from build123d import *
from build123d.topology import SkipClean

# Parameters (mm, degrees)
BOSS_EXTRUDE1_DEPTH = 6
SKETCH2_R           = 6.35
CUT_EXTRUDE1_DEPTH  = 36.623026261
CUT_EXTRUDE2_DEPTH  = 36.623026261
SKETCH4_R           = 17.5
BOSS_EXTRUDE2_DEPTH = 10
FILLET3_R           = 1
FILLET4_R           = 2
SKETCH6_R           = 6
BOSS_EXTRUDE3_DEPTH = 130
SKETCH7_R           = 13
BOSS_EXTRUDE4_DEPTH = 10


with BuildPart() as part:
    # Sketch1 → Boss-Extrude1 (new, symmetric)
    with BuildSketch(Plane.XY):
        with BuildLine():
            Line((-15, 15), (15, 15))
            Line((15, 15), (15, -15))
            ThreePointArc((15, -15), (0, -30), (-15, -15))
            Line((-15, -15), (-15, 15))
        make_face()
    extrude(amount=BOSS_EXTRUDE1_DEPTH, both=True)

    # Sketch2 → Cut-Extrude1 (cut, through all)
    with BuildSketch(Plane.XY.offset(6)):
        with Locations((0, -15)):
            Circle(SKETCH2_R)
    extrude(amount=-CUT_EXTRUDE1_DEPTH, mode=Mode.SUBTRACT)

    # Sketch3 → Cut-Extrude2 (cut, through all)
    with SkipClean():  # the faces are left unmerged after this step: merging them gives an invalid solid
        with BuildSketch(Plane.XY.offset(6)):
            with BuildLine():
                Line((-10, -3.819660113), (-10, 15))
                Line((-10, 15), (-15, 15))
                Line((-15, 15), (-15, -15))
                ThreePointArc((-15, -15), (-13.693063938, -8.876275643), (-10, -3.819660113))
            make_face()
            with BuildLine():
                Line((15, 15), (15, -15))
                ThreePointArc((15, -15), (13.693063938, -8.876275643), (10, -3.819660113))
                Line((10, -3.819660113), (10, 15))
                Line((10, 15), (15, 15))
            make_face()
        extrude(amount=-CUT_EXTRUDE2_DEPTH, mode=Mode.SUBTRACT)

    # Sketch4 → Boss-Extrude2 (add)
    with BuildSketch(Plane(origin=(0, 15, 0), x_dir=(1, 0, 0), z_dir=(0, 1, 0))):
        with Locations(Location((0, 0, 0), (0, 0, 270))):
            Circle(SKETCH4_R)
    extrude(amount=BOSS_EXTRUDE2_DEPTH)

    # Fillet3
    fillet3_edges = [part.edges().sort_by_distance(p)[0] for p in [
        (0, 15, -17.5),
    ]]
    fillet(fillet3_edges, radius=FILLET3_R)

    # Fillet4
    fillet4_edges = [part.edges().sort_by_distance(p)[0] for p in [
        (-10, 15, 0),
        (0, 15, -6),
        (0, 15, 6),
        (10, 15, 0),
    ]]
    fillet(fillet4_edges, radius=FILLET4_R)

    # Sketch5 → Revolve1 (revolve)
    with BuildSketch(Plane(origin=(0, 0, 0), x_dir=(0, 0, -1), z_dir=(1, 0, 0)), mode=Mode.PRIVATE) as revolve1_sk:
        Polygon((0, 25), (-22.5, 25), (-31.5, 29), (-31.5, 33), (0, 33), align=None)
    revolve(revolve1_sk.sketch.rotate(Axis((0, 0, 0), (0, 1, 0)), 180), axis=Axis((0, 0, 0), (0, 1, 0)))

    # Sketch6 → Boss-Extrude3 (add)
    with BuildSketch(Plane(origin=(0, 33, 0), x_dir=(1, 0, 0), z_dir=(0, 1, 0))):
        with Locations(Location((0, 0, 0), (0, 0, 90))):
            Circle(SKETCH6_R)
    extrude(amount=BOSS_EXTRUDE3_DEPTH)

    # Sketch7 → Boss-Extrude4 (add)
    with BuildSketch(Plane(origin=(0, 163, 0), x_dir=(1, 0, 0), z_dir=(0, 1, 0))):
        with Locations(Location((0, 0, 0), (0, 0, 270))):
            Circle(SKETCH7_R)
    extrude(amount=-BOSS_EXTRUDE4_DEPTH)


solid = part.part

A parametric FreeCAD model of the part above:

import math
import FreeCAD as App
import Part
import Sketcher
Q = App.Units.Quantity


def edges_at(feature, points):
    """Names of the edges that pass closest to the given points."""
    edges = feature.Shape.Edges
    near = lambda p: min(range(len(edges)), key=lambda i: edges[i].distToShape(Part.Vertex(*p))[0])
    return sorted({f"Edge{near(p) + 1}" for p in points})

doc = App.newDocument("Part")
body = doc.addObject("PartDesign::Body", "Body")

sketch1 = doc.addObject("Sketcher::SketchObject", "Sketch")
body.addObject(sketch1)
sketch1.AttachmentSupport = (doc.XY_Plane, [""])
sketch1.MapMode = "FlatFace"
sketch1.addGeometry([
    Part.LineSegment(App.Vector(15, 15, 0), App.Vector(-15, 15, 0)),
    Part.LineSegment(App.Vector(-15, 15, 0), App.Vector(-15, -15, 0)),
    Part.ArcOfCircle(Part.Circle(App.Vector(0, -15, 0), App.Vector(0, 0, 1), 15), math.radians(180), math.radians(360)),
    Part.LineSegment(App.Vector(15, -15, 0), App.Vector(15, 15, 0)),
], False)
sketch1.addConstraint([
    Sketcher.Constraint("Coincident", 0, 2, 1, 1),
    Sketcher.Constraint("Tangent", 1, 2, 2, 1),
    Sketcher.Constraint("Tangent", 2, 2, 3, 1),
    Sketcher.Constraint("Coincident", 3, 2, 0, 1),
    Sketcher.Constraint("Horizontal", 0),
    Sketcher.Constraint("Vertical", 1),
    Sketcher.Constraint("Vertical", 3),
    Sketcher.Constraint("Symmetric", 0, 2, 2, 2, -1, 1),
    Sketcher.Constraint("Equal", 0, 1),
    Sketcher.Constraint("Radius", 2, Q("15 mm")),
])
pad1 = doc.addObject("PartDesign::Pad", "Pad")
body.addObject(pad1)
pad1.Profile = sketch1
pad1.Length = 12
pad1.Midplane = True

sketch2 = doc.addObject("Sketcher::SketchObject", "Sketch001")
body.addObject(sketch2)
sketch2.AttachmentSupport = (doc.XY_Plane, [""])
sketch2.MapMode = "FlatFace"
sketch2.AttachmentOffset = App.Placement(App.Vector(0, 0, 6), App.Rotation())
sketch2.addGeometry(Part.Circle(App.Vector(0, -15, 0), App.Vector(0, 0, 1), 6), False)
sketch2.addConstraint([
    Sketcher.Constraint("PointOnObject", 0, 3, -2),
    Sketcher.Constraint("Diameter", 0, Q("12.7 mm")),
    Sketcher.Constraint("DistanceY", 0, 3, -1, 1, Q("15 mm")),
])
pocket1 = doc.addObject("PartDesign::Pocket", "Pocket")
body.addObject(pocket1)
pocket1.Profile = sketch2
pocket1.Type = "ThroughAll"

sketch3 = doc.addObject("Sketcher::SketchObject", "Sketch002")
body.addObject(sketch3)
sketch3.AttachmentSupport = (doc.XY_Plane, [""])
sketch3.MapMode = "FlatFace"
sketch3.AttachmentOffset = App.Placement(App.Vector(0, 0, 6), App.Rotation())
sketch3.addGeometry([
    Part.LineSegment(App.Vector(-10, -4, 0), App.Vector(-10, 15, 0)),
    Part.LineSegment(App.Vector(-10, 15, 0), App.Vector(-15, 15, 0)),
    Part.LineSegment(App.Vector(-15, 15, 0), App.Vector(-15, -15, 0)),
    Part.ArcOfCircle(Part.Circle(App.Vector(0, -15, 0), App.Vector(0, 0, 1), 15), math.radians(132), math.radians(180)),
    Part.LineSegment(App.Vector(15, -15, 0), App.Vector(15, 15, 0)),
    Part.LineSegment(App.Vector(15, 15, 0), App.Vector(10, 15, 0)),
    Part.LineSegment(App.Vector(10, 15, 0), App.Vector(10, -4, 0)),
    Part.ArcOfCircle(Part.Circle(App.Vector(0, -15, 0), App.Vector(0, 0, 1), 15), math.radians(0), math.radians(48)),
], False)
sketch3.addConstraint([
    Sketcher.Constraint("Coincident", 0, 2, 1, 1),
    Sketcher.Constraint("Coincident", 1, 2, 2, 1),
    Sketcher.Constraint("Tangent", 2, 2, 3, 2),
    Sketcher.Constraint("Coincident", 3, 1, 0, 1),
    Sketcher.Constraint("Coincident", 4, 2, 5, 1),
    Sketcher.Constraint("Coincident", 5, 2, 6, 1),
    Sketcher.Constraint("Coincident", 6, 2, 7, 2),
    Sketcher.Constraint("Tangent", 7, 1, 4, 1),
    Sketcher.Constraint("Vertical", 0),
    Sketcher.Constraint("Horizontal", 1),
    Sketcher.Constraint("Vertical", 2),
    Sketcher.Constraint("Vertical", 4),
    Sketcher.Constraint("Horizontal", 5),
    Sketcher.Constraint("Vertical", 6),
    Sketcher.Constraint("Coincident", 7, 3, 3, 3),
    Sketcher.Constraint("Equal", 3, 7),
    Sketcher.Constraint("Symmetric", 2, 2, 4, 2, -1, 1),
    Sketcher.Constraint("Symmetric", 0, 2, 5, 2, -2),
    Sketcher.Constraint("Radius", 3, Q("15 mm")),
    Sketcher.Constraint("DistanceX", 1, 2, 1, 1, Q("5 mm")),
    Sketcher.Constraint("DistanceY", 2, 2, 2, 1, Q("30 mm")),
])
pocket2 = doc.addObject("PartDesign::Pocket", "Pocket001")
body.addObject(pocket2)
pocket2.Profile = sketch3
pocket2.Type = "ThroughAll"

sketch4 = doc.addObject("Sketcher::SketchObject", "Sketch003")
body.addObject(sketch4)
sketch4.AttachmentSupport = (doc.XZ_Plane, [""])
sketch4.MapMode = "FlatFace"
sketch4.AttachmentOffset = App.Placement(App.Vector(0, 0, -15), App.Rotation())
sketch4.addGeometry(Part.Circle(App.Vector(0, 0, 0), App.Vector(0, 0, 1), 18), False)
sketch4.addConstraint([
    Sketcher.Constraint("Coincident", 0, 3, -1, 1),
    Sketcher.Constraint("Diameter", 0, Q("35 mm")),
])
pad2 = doc.addObject("PartDesign::Pad", "Pad001")
body.addObject(pad2)
pad2.Profile = sketch4
pad2.Length = 10
pad2.Reversed = True
doc.recompute()

fillet = doc.addObject("PartDesign::Fillet", "Fillet")
body.addObject(fillet)
fillet.Base = (pad2, edges_at(pad2, [(0, 15, -17.5)]))
fillet.Radius = 1
doc.recompute()

fillet2 = doc.addObject("PartDesign::Fillet", "Fillet001")
body.addObject(fillet2)
fillet2.Base = (fillet, edges_at(fillet, [
    (-10, 15, 0),
    (0, 15, -6),
    (0, 15, 6),
    (10, 15, 0),
]))
fillet2.Radius = 2

sketch5 = doc.addObject("Sketcher::SketchObject", "Sketch004")
body.addObject(sketch5)
sketch5.AttachmentSupport = (doc.YZ_Plane, [""])
sketch5.MapMode = "FlatFace"
sketch5.addGeometry([
    Part.LineSegment(App.Vector(25, 22.5, 0), App.Vector(25, 0, 0)),
    Part.LineSegment(App.Vector(25, 0, 0), App.Vector(33, 0, 0)),
    Part.LineSegment(App.Vector(33, 0, 0), App.Vector(33, 31.5, 0)),
    Part.LineSegment(App.Vector(33, 31.5, 0), App.Vector(29, 31.5, 0)),
    Part.LineSegment(App.Vector(29, 31.5, 0), App.Vector(25, 22.5, 0)),
], False)
sketch5.addConstraint([
    Sketcher.Constraint("Coincident", 0, 2, 1, 1),
    Sketcher.Constraint("Coincident", 1, 2, 2, 1),
    Sketcher.Constraint("Coincident", 2, 2, 3, 1),
    Sketcher.Constraint("Coincident", 3, 2, 4, 1),
    Sketcher.Constraint("Coincident", 4, 2, 0, 1),
    Sketcher.Constraint("Vertical", 0),
    Sketcher.Constraint("Horizontal", 1),
    Sketcher.Constraint("Vertical", 2),
    Sketcher.Constraint("Horizontal", 3),
    Sketcher.Constraint("PointOnObject", 0, 2, -1),
    Sketcher.Constraint("DistanceX", 1, 1, 1, 2, Q("8 mm")),
    Sketcher.Constraint("DistanceX", 3, 2, 3, 1, Q("4 mm")),
    Sketcher.Constraint("DistanceY", 0, 2, 0, 1, Q("22.5 mm")),
    Sketcher.Constraint("DistanceY", 2, 1, 2, 2, Q("31.5 mm")),
    Sketcher.Constraint("DistanceX", -1, 1, 0, 2, Q("25 mm")),
])
revolution = doc.addObject("PartDesign::Revolution", "Revolution")
body.addObject(revolution)
revolution.Profile = sketch5
revolution.ReferenceAxis = (sketch5, ["H_Axis"])
revolution.Angle = 360

sketch6 = doc.addObject("Sketcher::SketchObject", "Sketch005")
body.addObject(sketch6)
sketch6.AttachmentSupport = (doc.XZ_Plane, [""])
sketch6.MapMode = "FlatFace"
sketch6.AttachmentOffset = App.Placement(App.Vector(0, 0, -33), App.Rotation())
sketch6.addGeometry(Part.Circle(App.Vector(0, 0, 0), App.Vector(0, 0, 1), 6), False)
sketch6.addConstraint([
    Sketcher.Constraint("Coincident", 0, 3, -1, 1),
    Sketcher.Constraint("Diameter", 0, Q("12 mm")),
])
pad3 = doc.addObject("PartDesign::Pad", "Pad002")
body.addObject(pad3)
pad3.Profile = sketch6
pad3.Length = 130
pad3.Reversed = True

sketch7 = doc.addObject("Sketcher::SketchObject", "Sketch006")
body.addObject(sketch7)
sketch7.AttachmentSupport = (doc.XZ_Plane, [""])
sketch7.MapMode = "FlatFace"
sketch7.AttachmentOffset = App.Placement(App.Vector(0, 0, -163), App.Rotation())
sketch7.addGeometry(Part.Circle(App.Vector(0, 0, 0), App.Vector(0, 0, 1), 13), False)
sketch7.addConstraint([
    Sketcher.Constraint("Coincident", 0, 3, -1, 1),
    Sketcher.Constraint("Diameter", 0, Q("26 mm")),
])
pad4 = doc.addObject("PartDesign::Pad", "Pad003")
body.addObject(pad4)
pad4.Profile = sketch7
pad4.Length = 10

doc.recompute()
